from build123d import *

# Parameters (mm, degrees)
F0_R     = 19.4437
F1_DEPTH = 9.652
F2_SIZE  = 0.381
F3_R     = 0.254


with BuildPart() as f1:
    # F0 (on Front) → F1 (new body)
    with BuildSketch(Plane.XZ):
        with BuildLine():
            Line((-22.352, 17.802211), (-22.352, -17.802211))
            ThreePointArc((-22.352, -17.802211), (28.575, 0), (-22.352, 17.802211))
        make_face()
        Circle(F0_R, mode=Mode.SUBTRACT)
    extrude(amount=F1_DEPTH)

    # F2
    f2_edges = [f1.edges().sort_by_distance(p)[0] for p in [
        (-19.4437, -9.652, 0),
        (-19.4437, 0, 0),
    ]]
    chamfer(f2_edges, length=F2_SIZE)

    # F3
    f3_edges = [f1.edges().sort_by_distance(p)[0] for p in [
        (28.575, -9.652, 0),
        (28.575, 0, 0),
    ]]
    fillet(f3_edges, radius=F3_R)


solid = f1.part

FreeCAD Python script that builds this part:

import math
import FreeCAD as App
import Part
import Sketcher
from FreeCAD import Vector
Q = App.Units.Quantity


def edges_at(feature, points):
    """Names of the edges that pass closest to the given points."""
    edges = feature.Shape.Edges
    near = lambda p: min(range(len(edges)), key=lambda i: edges[i].distToShape(Part.Vertex(*p))[0])
    return sorted({f"Edge{near(p) + 1}" for p in points})

doc = App.newDocument("Part")
body = doc.addObject("PartDesign::Body", "Body")

# Sketch on XZ plane
sketch1 = doc.addObject("Sketcher::SketchObject", "Sketch")
body.addObject(sketch1)
sketch1.AttachmentSupport = (doc.XZ_Plane, [""])
sketch1.MapMode = "FlatFace"
sketch1.addGeometry([
    Part.LineSegment(Vector(-22, 18, 0), Vector(-22, -18, 0)),
    Part.ArcOfCircle(Part.Circle(Vector(0, 0, 0), Vector(0, 0, 1), 29), math.radians(-141), math.radians(141)),
    Part.Circle(Vector(0, 0, 0), Vector(0, 0, 1), 19),
], False)
sketch1.addConstraint([
    Sketcher.Constraint("Coincident", 0, 1, 1, 2),
    Sketcher.Constraint("Coincident", 1, 1, 0, 2),
    Sketcher.Constraint("Vertical", 0),
    Sketcher.Constraint("Coincident", 1, 3, -1, 1),
    Sketcher.Constraint("Coincident", 2, 3, -1, 1),
    Sketcher.Constraint("Diameter", 2, Q("1.531 in")),
    Sketcher.Constraint("Radius", 1, Q("1.125 in")),
    Sketcher.Constraint("DistanceX", 0, 1, -1, 1, Q("0.88 in")),
])
pad1 = doc.addObject("PartDesign::Pad", "Pad")
body.addObject(pad1)
pad1.Profile = sketch1
pad1.Length = Q("0.38 in")
doc.recompute()

chamfer = doc.addObject("PartDesign::Chamfer", "Chamfer")
body.addObject(chamfer)
chamfer.Base = (pad1, edges_at(pad1, [(-19.444, -9.652, 0), (-19.444, 0, 0)]))
chamfer.Size = Q("0.015 in")
doc.recompute()

fillet = doc.addObject("PartDesign::Fillet", "Fillet")
body.addObject(fillet)
fillet.Base = (chamfer, edges_at(chamfer, [(28.575, -9.652, 0), (28.575, 0, 0)]))
fillet.Radius = Q("0.01 in")

doc.recompute()
